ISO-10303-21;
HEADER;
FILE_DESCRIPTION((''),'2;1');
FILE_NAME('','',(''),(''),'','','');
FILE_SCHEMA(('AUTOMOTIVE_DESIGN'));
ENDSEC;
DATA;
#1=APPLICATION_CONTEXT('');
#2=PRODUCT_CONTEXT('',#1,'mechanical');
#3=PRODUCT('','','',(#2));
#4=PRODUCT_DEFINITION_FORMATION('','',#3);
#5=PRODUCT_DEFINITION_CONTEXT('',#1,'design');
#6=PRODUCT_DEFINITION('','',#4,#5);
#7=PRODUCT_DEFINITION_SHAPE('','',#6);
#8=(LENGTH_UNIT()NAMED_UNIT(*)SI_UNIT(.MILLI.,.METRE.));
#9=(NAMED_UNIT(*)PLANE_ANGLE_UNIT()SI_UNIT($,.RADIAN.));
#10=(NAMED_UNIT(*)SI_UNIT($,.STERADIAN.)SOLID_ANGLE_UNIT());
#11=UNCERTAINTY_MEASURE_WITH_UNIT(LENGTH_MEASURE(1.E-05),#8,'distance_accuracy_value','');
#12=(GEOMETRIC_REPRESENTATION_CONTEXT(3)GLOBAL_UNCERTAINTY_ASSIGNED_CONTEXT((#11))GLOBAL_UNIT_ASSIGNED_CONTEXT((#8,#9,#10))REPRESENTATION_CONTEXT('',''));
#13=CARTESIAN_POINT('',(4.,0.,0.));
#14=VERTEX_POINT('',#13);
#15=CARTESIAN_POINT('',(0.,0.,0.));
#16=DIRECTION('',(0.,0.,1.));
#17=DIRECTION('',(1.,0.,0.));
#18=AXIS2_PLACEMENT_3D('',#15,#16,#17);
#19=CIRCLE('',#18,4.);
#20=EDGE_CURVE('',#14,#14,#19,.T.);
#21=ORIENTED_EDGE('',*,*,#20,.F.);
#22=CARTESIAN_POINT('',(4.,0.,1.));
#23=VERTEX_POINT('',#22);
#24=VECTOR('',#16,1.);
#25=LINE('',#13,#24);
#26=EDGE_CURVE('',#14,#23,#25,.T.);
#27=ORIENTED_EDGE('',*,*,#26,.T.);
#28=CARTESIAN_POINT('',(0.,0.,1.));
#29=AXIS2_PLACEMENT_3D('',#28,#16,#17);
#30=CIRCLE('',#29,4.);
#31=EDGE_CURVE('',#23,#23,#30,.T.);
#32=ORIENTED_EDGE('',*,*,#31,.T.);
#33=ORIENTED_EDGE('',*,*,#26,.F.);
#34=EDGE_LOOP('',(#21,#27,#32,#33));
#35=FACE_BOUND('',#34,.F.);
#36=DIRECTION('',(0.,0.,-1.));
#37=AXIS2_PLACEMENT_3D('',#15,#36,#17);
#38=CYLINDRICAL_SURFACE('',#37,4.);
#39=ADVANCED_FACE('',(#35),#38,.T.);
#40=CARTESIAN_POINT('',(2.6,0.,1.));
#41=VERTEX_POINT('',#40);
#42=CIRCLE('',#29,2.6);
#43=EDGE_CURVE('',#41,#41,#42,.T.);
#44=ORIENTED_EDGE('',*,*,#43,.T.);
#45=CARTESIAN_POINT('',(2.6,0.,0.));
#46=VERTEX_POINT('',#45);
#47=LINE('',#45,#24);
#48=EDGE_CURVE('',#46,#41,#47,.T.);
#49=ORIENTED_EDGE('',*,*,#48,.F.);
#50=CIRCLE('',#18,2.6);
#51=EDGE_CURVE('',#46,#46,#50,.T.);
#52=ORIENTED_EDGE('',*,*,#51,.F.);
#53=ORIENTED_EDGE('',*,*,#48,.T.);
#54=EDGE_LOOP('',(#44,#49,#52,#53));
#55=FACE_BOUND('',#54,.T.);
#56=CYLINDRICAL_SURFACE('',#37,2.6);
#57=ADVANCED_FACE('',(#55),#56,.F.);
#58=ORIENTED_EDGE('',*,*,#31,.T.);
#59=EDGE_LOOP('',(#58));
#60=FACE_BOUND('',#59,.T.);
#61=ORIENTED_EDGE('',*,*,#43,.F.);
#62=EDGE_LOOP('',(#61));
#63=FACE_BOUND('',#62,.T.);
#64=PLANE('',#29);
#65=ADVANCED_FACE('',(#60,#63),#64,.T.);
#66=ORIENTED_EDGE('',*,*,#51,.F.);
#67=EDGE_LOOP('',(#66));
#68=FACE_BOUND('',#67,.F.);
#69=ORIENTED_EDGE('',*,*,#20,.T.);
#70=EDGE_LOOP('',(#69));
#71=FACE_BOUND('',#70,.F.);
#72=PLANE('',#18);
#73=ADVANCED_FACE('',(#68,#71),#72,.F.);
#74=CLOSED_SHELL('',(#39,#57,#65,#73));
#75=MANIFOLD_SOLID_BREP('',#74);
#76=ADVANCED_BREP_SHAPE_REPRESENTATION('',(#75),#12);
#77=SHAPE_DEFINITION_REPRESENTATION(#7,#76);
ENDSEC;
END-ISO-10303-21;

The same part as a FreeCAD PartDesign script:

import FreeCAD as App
import Part
import Sketcher
from FreeCAD import Vector
Q = App.Units.Quantity

doc = App.newDocument("Part")
body = doc.addObject("PartDesign::Body", "Body")

# Sketch on XY plane
sketch1 = body.newObject("Sketcher::SketchObject", "Sketch")
sketch1.AttachmentSupport = (doc.getObject("XY_Plane"), [""])
sketch1.MapMode = "FlatFace"
sketch1.addGeometry(Part.Circle(Vector(0, 0, 0), Vector(0, 0, 1), 4), False)
sketch1.addGeometry(Part.Circle(Vector(0, 0, 0), Vector(0, 0, 1), 2.6), False)
sketch1.addConstraint(Sketcher.Constraint("Coincident", 0, 3, -1, 1))
sketch1.addConstraint(Sketcher.Constraint("Coincident", 1, 3, -1, 1))
sketch1.addConstraint(Sketcher.Constraint("Diameter", 0, Q("8 mm")))
sketch1.addConstraint(Sketcher.Constraint("Diameter", 1, Q("5.2 mm")))
pad1 = body.newObject("PartDesign::Pad", "Pad")
pad1.Profile = sketch1
pad1.Length = 1

doc.recompute()
